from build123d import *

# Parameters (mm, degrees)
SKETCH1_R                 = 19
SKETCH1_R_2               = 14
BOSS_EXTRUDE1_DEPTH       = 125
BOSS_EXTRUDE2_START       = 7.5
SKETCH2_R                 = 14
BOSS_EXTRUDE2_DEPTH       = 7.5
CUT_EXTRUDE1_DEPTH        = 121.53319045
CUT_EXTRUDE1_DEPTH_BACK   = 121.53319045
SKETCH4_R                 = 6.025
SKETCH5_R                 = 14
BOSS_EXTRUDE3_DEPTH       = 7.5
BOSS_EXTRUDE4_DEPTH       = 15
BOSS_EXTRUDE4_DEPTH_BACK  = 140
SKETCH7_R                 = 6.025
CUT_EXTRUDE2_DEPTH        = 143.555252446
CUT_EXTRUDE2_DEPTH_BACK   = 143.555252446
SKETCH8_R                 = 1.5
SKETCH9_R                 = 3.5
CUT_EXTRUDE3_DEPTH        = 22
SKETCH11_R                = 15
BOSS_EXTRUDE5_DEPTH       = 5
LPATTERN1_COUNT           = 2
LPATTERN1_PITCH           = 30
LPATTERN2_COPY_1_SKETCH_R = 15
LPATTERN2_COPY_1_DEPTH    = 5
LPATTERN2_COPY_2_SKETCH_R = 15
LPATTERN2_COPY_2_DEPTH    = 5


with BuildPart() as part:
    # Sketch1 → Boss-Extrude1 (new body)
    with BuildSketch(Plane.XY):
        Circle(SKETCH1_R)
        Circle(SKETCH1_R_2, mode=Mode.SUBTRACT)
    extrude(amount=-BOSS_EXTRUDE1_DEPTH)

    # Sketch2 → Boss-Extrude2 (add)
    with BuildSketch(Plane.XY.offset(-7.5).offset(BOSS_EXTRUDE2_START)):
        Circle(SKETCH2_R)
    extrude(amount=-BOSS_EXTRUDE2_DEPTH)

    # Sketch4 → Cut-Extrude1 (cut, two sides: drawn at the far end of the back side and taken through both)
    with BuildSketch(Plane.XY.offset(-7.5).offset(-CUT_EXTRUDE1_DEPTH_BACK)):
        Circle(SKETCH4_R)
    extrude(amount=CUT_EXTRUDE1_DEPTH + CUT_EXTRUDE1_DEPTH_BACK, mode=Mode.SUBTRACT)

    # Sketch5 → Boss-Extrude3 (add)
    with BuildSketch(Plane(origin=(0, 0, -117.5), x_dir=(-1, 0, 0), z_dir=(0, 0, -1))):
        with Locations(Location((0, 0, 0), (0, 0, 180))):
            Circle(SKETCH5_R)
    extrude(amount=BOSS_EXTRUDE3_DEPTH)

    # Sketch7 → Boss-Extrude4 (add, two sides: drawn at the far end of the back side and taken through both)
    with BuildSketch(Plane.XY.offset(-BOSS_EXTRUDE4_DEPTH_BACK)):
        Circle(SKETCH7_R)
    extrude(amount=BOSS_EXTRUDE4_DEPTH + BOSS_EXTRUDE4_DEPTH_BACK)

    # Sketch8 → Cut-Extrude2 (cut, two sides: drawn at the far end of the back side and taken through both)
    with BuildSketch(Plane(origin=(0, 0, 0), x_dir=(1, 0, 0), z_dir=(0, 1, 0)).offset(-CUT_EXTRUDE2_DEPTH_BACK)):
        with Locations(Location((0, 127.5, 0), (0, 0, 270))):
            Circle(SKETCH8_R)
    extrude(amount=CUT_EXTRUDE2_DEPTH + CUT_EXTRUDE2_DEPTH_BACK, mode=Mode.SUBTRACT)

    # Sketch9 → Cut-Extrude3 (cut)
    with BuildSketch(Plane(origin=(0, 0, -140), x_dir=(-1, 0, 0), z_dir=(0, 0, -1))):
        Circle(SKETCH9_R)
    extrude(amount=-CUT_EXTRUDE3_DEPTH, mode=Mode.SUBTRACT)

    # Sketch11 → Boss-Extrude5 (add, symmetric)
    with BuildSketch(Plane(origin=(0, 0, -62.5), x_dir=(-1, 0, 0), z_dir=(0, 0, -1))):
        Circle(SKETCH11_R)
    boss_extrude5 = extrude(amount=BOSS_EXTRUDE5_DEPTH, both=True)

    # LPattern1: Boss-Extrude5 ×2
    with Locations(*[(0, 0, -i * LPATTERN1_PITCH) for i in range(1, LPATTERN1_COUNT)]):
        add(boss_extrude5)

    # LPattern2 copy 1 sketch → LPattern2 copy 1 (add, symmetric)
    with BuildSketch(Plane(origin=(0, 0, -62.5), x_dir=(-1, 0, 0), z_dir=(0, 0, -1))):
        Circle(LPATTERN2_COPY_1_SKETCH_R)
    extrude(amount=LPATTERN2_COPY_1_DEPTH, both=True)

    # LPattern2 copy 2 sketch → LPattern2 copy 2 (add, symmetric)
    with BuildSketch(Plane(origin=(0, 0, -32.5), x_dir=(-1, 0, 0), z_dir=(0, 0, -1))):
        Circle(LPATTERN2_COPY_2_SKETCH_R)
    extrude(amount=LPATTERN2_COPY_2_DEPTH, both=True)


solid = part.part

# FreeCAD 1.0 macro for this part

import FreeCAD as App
import Part
import Sketcher
from FreeCAD import Vector
Q = App.Units.Quantity

doc = App.newDocument("Part")
body = doc.addObject("PartDesign::Body", "Body")

sketch1 = body.newObject("Sketcher::SketchObject", "Sketch")
sketch1.AttachmentSupport = (doc.getObject("XY_Plane"), [""])
sketch1.MapMode = "FlatFace"
sketch1.addGeometry(Part.Circle(Vector(0, 0, 0), Vector(0, 0, 1), 19), False)
sketch1.addGeometry(Part.Circle(Vector(0, 0, 0), Vector(0, 0, 1), 14), False)
sketch1.addConstraint(Sketcher.Constraint("Coincident", 0, 3, -1, 1))
sketch1.addConstraint(Sketcher.Constraint("Coincident", 1, 3, -1, 1))
sketch1.addConstraint(Sketcher.Constraint("Diameter", 0, Q("38 mm")))
sketch1.addConstraint(Sketcher.Constraint("Diameter", 1, Q("28 mm")))
pad1 = body.newObject("PartDesign::Pad", "Pad")
pad1.Profile = sketch1
pad1.Length = 125
pad1.Reversed = True

sketch2 = body.newObject("Sketcher::SketchObject", "Sketch001")
sketch2.AttachmentSupport = (doc.getObject("XY_Plane"), [""])
sketch2.MapMode = "FlatFace"
sketch2.addGeometry(Part.Circle(Vector(0, 0, 0), Vector(0, 0, 1), 14), False)
sketch2.addConstraint(Sketcher.Constraint("Coincident", 0, 3, -1, 1))
sketch2.addConstraint(Sketcher.Constraint("Diameter", 0, Q("28 mm")))
pad2 = body.newObject("PartDesign::Pad", "Pad001")
pad2.Profile = sketch2
pad2.Length = 7.5
pad2.Reversed = True

sketch3 = body.newObject("Sketcher::SketchObject", "Sketch002")
sketch3.AttachmentSupport = (doc.getObject("XY_Plane"), [""])
sketch3.MapMode = "FlatFace"
sketch3.AttachmentOffset = App.Placement(Vector(0, 0, -7.5), App.Rotation())
sketch3.addGeometry(Part.Circle(Vector(0, 0, 0), Vector(0, 0, 1), 6), False)
sketch3.addConstraint(Sketcher.Constraint("Coincident", 0, 3, -1, 1))
sketch3.addConstraint(Sketcher.Constraint("Diameter", 0, Q("12.05 mm")))
pocket1 = body.newObject("PartDesign::Pocket", "Pocket")
pocket1.Profile = sketch3
pocket1.Type = "ThroughAll"
pocket1.Midplane = True

sketch4 = body.newObject("Sketcher::SketchObject", "Sketch003")
sketch4.AttachmentSupport = (doc.getObject("XY_Plane"), [""])
sketch4.MapMode = "FlatFace"
sketch4.AttachmentOffset = App.Placement(Vector(0, 0, -117.5), App.Rotation())
sketch4.addGeometry(Part.Circle(Vector(0, 0, 0), Vector(0, 0, 1), 14), False)
sketch4.addConstraint(Sketcher.Constraint("Coincident", 0, 3, -1, 1))
sketch4.addConstraint(Sketcher.Constraint("Diameter", 0, Q("28 mm")))
pad3 = body.newObject("PartDesign::Pad", "Pad002")
pad3.Profile = sketch4
pad3.Length = 7.5
pad3.Reversed = True

sketch5 = body.newObject("Sketcher::SketchObject", "Sketch004")
sketch5.AttachmentSupport = (doc.getObject("XY_Plane"), [""])
sketch5.MapMode = "FlatFace"
sketch5.addGeometry(Part.Circle(Vector(0, 0, 0), Vector(0, 0, 1), 6), False)
sketch5.addConstraint(Sketcher.Constraint("Coincident", 0, 3, -1, 1))
sketch5.addConstraint(Sketcher.Constraint("Diameter", 0, Q("12.05 mm")))
pad4 = body.newObject("PartDesign::Pad", "Pad003")
pad4.Profile = sketch5
pad4.Type = "TwoLengths"
pad4.Length = 15
pad4.Length2 = 140

sketch6 = body.newObject("Sketcher::SketchObject", "Sketch005")
sketch6.AttachmentSupport = (doc.getObject("XZ_Plane"), [""])
sketch6.MapMode = "FlatFace"
sketch6.addGeometry(Part.Circle(Vector(0, -127.5, 0), Vector(0, 0, 1), 1.5), False)
sketch6.addConstraint(Sketcher.Constraint("PointOnObject", 0, 3, -2))
sketch6.addConstraint(Sketcher.Constraint("Diameter", 0, Q("3 mm")))
sketch6.addConstraint(Sketcher.Constraint("DistanceY", 0, 3, -1, 1, Q("127.5 mm")))
pocket2 = body.newObject("PartDesign::Pocket", "Pocket001")
pocket2.Profile = sketch6
pocket2.Type = "ThroughAll"
pocket2.Midplane = True

sketch7 = body.newObject("Sketcher::SketchObject", "Sketch006")
sketch7.AttachmentSupport = (doc.getObject("XY_Plane"), [""])
sketch7.MapMode = "FlatFace"
sketch7.AttachmentOffset = App.Placement(Vector(0, 0, -140), App.Rotation())
sketch7.addGeometry(Part.Circle(Vector(0, 0, 0), Vector(0, 0, 1), 3.5), False)
sketch7.addConstraint(Sketcher.Constraint("Coincident", 0, 3, -1, 1))
sketch7.addConstraint(Sketcher.Constraint("Diameter", 0, Q("7 mm")))
pocket3 = body.newObject("PartDesign::Pocket", "Pocket002")
pocket3.Profile = sketch7
pocket3.Length = 22
pocket3.Reversed = True

sketch8 = body.newObject("Sketcher::SketchObject", "Sketch007")
sketch8.AttachmentSupport = (doc.getObject("XY_Plane"), [""])
sketch8.MapMode = "FlatFace"
sketch8.AttachmentOffset = App.Placement(Vector(0, 0, -62.5), App.Rotation())
sketch8.addGeometry(Part.Circle(Vector(0, 0, 0), Vector(0, 0, 1), 15), False)
sketch8.addConstraint(Sketcher.Constraint("Coincident", 0, 3, -1, 1))
sketch8.addConstraint(Sketcher.Constraint("Diameter", 0, Q("30 mm")))
pad5 = body.newObject("PartDesign::Pad", "Pad004")
pad5.Profile = sketch8
pad5.Length = 10
pad5.Midplane = True
doc.recompute()

linearpattern = body.newObject("PartDesign::LinearPattern", "LinearPattern")
linearpattern.Originals = [pad5]
linearpattern.Direction = (doc.getObject("Z_Axis"), [""])
linearpattern.Mode = "offset"
linearpattern.Offset = 30
linearpattern.Occurrences = 2
linearpattern.Reversed = True
body.Tip = linearpattern

sketch9 = body.newObject("Sketcher::SketchObject", "Sketch008")
sketch9.AttachmentSupport = (doc.getObject("XY_Plane"), [""])
sketch9.MapMode = "FlatFace"
sketch9.AttachmentOffset = App.Placement(Vector(0, 0, -62.5), App.Rotation())
sketch9.addGeometry(Part.Circle(Vector(0, 0, 0), Vector(0, 0, 1), 15), False)
sketch9.addConstraint(Sketcher.Constraint("Coincident", 0, 3, -1, 1))
sketch9.addConstraint(Sketcher.Constraint("Diameter", 0, Q("30 mm")))
pad6 = body.newObject("PartDesign::Pad", "Pad005")
pad6.Profile = sketch9
pad6.Length = 10
pad6.Midplane = True

sketch10 = body.newObject("Sketcher::SketchObject", "Sketch009")
sketch10.AttachmentSupport = (doc.getObject("XY_Plane"), [""])
sketch10.MapMode = "FlatFace"
sketch10.AttachmentOffset = App.Placement(Vector(0, 0, -32.5), App.Rotation())
sketch10.addGeometry(Part.Circle(Vector(0, 0, 0), Vector(0, 0, 1), 15), False)
sketch10.addConstraint(Sketcher.Constraint("Coincident", 0, 3, -1, 1))
sketch10.addConstraint(Sketcher.Constraint("Diameter", 0, Q("30 mm")))
pad7 = body.newObject("PartDesign::Pad", "Pad006")
pad7.Profile = sketch10
pad7.Length = 10
pad7.Midplane = True

doc.recompute()
